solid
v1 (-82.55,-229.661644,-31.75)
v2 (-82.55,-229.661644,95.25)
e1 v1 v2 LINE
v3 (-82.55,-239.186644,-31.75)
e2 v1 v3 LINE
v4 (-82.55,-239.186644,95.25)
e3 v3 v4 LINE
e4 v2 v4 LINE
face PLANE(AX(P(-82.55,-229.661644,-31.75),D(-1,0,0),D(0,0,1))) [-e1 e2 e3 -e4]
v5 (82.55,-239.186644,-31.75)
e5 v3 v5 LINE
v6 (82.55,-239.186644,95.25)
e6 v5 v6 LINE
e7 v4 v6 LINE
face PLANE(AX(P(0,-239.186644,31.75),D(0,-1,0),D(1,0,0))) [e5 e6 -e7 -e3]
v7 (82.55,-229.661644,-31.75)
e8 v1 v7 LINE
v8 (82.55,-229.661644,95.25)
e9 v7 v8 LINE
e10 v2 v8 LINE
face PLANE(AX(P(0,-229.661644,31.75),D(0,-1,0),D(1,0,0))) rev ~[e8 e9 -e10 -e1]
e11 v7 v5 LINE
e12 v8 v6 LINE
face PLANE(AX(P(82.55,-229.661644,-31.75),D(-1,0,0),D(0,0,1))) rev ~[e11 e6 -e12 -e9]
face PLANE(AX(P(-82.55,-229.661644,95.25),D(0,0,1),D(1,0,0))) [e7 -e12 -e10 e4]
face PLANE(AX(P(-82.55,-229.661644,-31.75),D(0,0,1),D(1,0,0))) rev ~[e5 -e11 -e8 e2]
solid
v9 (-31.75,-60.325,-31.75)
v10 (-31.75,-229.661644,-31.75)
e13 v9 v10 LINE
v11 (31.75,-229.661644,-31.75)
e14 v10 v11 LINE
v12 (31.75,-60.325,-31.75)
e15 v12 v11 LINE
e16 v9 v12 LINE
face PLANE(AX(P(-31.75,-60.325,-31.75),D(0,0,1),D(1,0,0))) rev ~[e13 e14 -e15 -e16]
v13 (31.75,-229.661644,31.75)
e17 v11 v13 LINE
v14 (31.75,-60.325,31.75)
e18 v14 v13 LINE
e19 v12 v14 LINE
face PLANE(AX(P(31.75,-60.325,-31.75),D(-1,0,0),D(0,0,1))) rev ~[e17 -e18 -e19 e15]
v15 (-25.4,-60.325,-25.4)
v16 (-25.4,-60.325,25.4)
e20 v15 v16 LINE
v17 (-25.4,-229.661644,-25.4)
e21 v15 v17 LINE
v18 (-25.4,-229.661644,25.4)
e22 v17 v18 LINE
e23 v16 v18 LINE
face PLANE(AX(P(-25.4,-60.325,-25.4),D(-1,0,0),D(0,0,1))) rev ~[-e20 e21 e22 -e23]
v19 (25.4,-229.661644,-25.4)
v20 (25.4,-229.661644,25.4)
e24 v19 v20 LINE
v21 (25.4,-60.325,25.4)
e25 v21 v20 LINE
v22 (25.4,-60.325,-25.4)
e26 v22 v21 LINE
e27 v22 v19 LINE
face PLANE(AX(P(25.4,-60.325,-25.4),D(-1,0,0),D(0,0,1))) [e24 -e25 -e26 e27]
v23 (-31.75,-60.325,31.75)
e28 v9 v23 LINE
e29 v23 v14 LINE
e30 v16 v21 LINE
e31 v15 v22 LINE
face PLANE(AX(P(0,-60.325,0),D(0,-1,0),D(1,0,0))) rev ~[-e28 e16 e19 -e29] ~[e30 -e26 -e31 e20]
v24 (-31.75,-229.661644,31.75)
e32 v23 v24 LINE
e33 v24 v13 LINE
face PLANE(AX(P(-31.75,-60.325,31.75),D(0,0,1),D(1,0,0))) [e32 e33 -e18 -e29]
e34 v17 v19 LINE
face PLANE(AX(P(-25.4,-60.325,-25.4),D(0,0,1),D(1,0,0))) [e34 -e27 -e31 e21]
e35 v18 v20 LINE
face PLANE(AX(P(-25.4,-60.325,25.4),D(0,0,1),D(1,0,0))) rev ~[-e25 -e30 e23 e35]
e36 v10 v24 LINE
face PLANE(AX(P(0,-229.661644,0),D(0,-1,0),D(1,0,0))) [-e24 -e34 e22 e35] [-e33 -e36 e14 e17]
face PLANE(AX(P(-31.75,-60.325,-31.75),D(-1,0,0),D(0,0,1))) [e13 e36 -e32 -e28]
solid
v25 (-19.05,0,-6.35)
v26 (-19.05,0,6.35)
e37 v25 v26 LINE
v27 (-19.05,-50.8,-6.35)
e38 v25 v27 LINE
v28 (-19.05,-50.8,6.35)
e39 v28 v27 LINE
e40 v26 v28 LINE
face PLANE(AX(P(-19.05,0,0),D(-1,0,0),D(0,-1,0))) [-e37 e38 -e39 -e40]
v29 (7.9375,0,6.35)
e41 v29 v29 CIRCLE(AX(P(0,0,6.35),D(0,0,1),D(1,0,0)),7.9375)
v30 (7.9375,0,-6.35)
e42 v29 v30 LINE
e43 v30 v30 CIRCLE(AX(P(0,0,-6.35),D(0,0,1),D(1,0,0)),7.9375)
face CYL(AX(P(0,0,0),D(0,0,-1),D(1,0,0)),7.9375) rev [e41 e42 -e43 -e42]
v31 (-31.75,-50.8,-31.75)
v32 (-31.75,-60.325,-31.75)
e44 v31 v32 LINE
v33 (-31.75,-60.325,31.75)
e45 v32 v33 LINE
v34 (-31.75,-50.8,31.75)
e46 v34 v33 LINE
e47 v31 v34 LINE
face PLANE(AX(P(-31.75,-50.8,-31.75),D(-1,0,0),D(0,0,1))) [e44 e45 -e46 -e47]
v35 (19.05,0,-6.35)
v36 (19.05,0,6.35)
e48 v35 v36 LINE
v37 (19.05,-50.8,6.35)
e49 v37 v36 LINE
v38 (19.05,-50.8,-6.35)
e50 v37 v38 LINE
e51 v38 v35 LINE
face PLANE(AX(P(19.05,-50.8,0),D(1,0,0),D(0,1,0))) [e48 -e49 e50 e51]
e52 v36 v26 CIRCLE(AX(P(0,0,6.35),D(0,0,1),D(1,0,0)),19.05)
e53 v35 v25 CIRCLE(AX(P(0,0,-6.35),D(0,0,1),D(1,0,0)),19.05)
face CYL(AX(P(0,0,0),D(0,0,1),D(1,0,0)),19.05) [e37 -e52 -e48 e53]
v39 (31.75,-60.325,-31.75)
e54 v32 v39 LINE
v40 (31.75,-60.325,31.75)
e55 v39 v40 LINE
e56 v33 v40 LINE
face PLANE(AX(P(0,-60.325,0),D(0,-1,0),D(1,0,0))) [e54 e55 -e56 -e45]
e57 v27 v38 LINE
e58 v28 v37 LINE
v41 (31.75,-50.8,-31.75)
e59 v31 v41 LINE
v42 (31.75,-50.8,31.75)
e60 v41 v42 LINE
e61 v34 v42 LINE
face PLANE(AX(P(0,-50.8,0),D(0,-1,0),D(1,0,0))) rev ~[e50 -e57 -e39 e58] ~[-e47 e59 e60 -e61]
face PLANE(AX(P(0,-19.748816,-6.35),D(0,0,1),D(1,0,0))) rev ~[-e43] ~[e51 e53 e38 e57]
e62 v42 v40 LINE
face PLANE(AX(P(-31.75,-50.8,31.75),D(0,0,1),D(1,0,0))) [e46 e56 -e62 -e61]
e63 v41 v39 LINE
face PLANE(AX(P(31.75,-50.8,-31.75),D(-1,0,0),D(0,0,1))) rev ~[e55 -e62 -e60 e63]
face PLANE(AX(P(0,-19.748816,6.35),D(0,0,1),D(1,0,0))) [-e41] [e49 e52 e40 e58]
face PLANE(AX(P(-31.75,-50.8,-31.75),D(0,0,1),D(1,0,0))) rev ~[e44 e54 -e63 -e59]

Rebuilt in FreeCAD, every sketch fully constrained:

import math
import FreeCAD as App
import Part
import Sketcher

V = App.Vector
Q = App.Units.Quantity

doc = App.newDocument("Part")
params = doc.addObject("Spreadsheet::Sheet", "Params")
for row, (alias, value) in enumerate([
    ("sketch1_height", "2 in"),
    ("sketch1_radius", "0.75 in"),
    ("sketch1_diameter", "0.625 in"),
    ("pad1_length", "0.25 in"),
    ("pad1_length2", "0.25 in"),
    ("sketch2_width", "2.5 in"),
    ("pad2_length", "0.375 in"),
    ("sketch3_width", "2 in"),
    ("sketch3_width2", "2.5 in"),
    ("pad3_length", "169.336644 mm"),
    ("sketch4_height", "5 in"),
    ("sketch4_width", "6.5 in"),
    ("pad4_length", "0.375 in"),
], start=1):
    params.set(f"A{row}", alias)
    params.set(f"B{row}", "=" + value)
    params.setAlias(f"B{row}", alias)

body = doc.addObject("PartDesign::Body", "Body")

# Sketch on XY plane
sketch1 = doc.addObject("Sketcher::SketchObject", "Sketch")
body.addObject(sketch1)
sketch1.AttachmentSupport = (doc.XY_Plane, [""])
sketch1.MapMode = "FlatFace"
sketch1.addGeometry([
    Part.LineSegment(V(19, -51, 0), V(19, 0, 0)),  # 0
    Part.ArcOfCircle(Part.Circle(V(0, 0, 0), V(0, 0, 1), 19), math.radians(0), math.radians(180)),  # 1
    Part.LineSegment(V(-19, 0, 0), V(-19, -51, 0)),  # 2
    Part.LineSegment(V(-19, -51, 0), V(19, -51, 0)),  # 3
    Part.Circle(V(0, 0, 0), V(0, 0, 1), 8),  # 4
], False)
sketch1.addConstraint([
    Sketcher.Constraint("Tangent", 0, 2, 1, 1),
    Sketcher.Constraint("Tangent", 1, 2, 2, 1),
    Sketcher.Constraint("Coincident", 2, 2, 3, 1),
    Sketcher.Constraint("Coincident", 3, 2, 0, 1),
    Sketcher.Constraint("Vertical", 0),
    Sketcher.Constraint("Vertical", 2),
    Sketcher.Constraint("Horizontal", 3),
    Sketcher.Constraint("Coincident", 1, 3, -1, 1),
    Sketcher.Constraint("Coincident", 4, 3, -1, 1),
    Sketcher.Constraint("DistanceY", 0, 1, 0, 2, Q("2 in")),
    Sketcher.Constraint("Radius", 1, Q("0.75 in")),
    Sketcher.Constraint("Diameter", 4, Q("0.625 in")),
])
sketch1.setExpression("Constraints[9]", "Params.sketch1_height")
sketch1.setExpression("Constraints[10]", "Params.sketch1_radius")
sketch1.setExpression("Constraints[11]", "Params.sketch1_diameter")
pad1 = doc.addObject("PartDesign::Pad", "Pad")
body.addObject(pad1)
pad1.Profile = sketch1
pad1.Type = "TwoLengths"
pad1.setExpression("Length", "Params.pad1_length")
pad1.setExpression("Length2", "Params.pad1_length2")

# Sketch on XZ plane
sketch2 = doc.addObject("Sketcher::SketchObject", "Sketch001")
body.addObject(sketch2)
sketch2.AttachmentSupport = (doc.XZ_Plane, [""])
sketch2.MapMode = "FlatFace"
sketch2.AttachmentOffset = App.Placement(V(0, 0, 2 * 25.4), App.Rotation())
sketch2.addGeometry([
    Part.LineSegment(V(-32, 32, 0), V(-32, -32, 0)),
    Part.LineSegment(V(-32, -32, 0), V(32, -32, 0)),
    Part.LineSegment(V(32, -32, 0), V(32, 32, 0)),
    Part.LineSegment(V(32, 32, 0), V(-32, 32, 0)),
], False)
sketch2.addConstraint([
    Sketcher.Constraint("Coincident", 0, 2, 1, 1),
    Sketcher.Constraint("Coincident", 1, 2, 2, 1),
    Sketcher.Constraint("Coincident", 2, 2, 3, 1),
    Sketcher.Constraint("Coincident", 3, 2, 0, 1),
    Sketcher.Constraint("Vertical", 0),
    Sketcher.Constraint("Horizontal", 1),
    Sketcher.Constraint("Vertical", 2),
    Sketcher.Constraint("Horizontal", 3),
    Sketcher.Constraint("Symmetric", 0, 2, 2, 2, -1, 1),
    Sketcher.Constraint("Equal", 3, 0),
    Sketcher.Constraint("DistanceX", 1, 1, 1, 2, Q("2.5 in")),
])
sketch2.setExpression("Constraints[10]", "Params.sketch2_width")
pad2 = doc.addObject("PartDesign::Pad", "Pad001")
body.addObject(pad2)
pad2.Profile = sketch2
pad2.setExpression("Length", "Params.pad2_length")
body2 = doc.addObject("PartDesign::Body", "Body001")

# Sketch on XZ plane
sketch3 = doc.addObject("Sketcher::SketchObject", "Sketch002")
body2.addObject(sketch3)
sketch3.AttachmentSupport = (doc.getObject("XZ_Plane001"), [""])
sketch3.MapMode = "FlatFace"
sketch3.AttachmentOffset = App.Placement(V(0, 0, 2.375 * 25.4), App.Rotation())
sketch3.addGeometry([
    Part.LineSegment(V(-32, 32, 0), V(-32, -32, 0)),  # 0
    Part.LineSegment(V(-32, -32, 0), V(32, -32, 0)),  # 1
    Part.LineSegment(V(32, -32, 0), V(32, 32, 0)),  # 2
    Part.LineSegment(V(32, 32, 0), V(-32, 32, 0)),  # 3
    Part.LineSegment(V(25, -25, 0), V(-25, -25, 0)),  # 4
    Part.LineSegment(V(-25, -25, 0), V(-25, 25, 0)),  # 5
    Part.LineSegment(V(-25, 25, 0), V(25, 25, 0)),  # 6
    Part.LineSegment(V(25, 25, 0), V(25, -25, 0)),  # 7
], False)
sketch3.addConstraint([
    Sketcher.Constraint("Coincident", 0, 2, 1, 1),
    Sketcher.Constraint("Coincident", 1, 2, 2, 1),
    Sketcher.Constraint("Coincident", 2, 2, 3, 1),
    Sketcher.Constraint("Coincident", 3, 2, 0, 1),
    Sketcher.Constraint("Coincident", 4, 2, 5, 1),
    Sketcher.Constraint("Coincident", 5, 2, 6, 1),
    Sketcher.Constraint("Coincident", 6, 2, 7, 1),
    Sketcher.Constraint("Coincident", 7, 2, 4, 1),
    Sketcher.Constraint("Vertical", 0),
    Sketcher.Constraint("Horizontal", 1),
    Sketcher.Constraint("Vertical", 2),
    Sketcher.Constraint("Horizontal", 3),
    Sketcher.Constraint("Horizontal", 4),
    Sketcher.Constraint("Vertical", 5),
    Sketcher.Constraint("Horizontal", 6),
    Sketcher.Constraint("Vertical", 7),
    Sketcher.Constraint("Symmetric", 0, 2, 2, 2, -1, 1),
    Sketcher.Constraint("Symmetric", 4, 2, 6, 2, -1, 1),
    Sketcher.Constraint("Equal", 3, 0),
    Sketcher.Constraint("Equal", 6, 5),
    Sketcher.Constraint("DistanceX", 4, 2, 4, 1, Q("2 in")),
    Sketcher.Constraint("DistanceX", 1, 1, 1, 2, Q("2.5 in")),
])
sketch3.setExpression("Constraints[20]", "Params.sketch3_width")
sketch3.setExpression("Constraints[21]", "Params.sketch3_width2")
pad3 = doc.addObject("PartDesign::Pad", "Pad002")
body2.addObject(pad3)
pad3.Profile = sketch3
pad3.setExpression("Length", "Params.pad3_length")
body3 = doc.addObject("PartDesign::Body", "Body002")

# Sketch on XZ plane
sketch4 = doc.addObject("Sketcher::SketchObject", "Sketch003")
body3.addObject(sketch4)
sketch4.AttachmentSupport = (doc.getObject("XZ_Plane002"), [""])
sketch4.MapMode = "FlatFace"
sketch4.AttachmentOffset = App.Placement(V(0, 0, 229.661644), App.Rotation())
sketch4.addGeometry([
    Part.LineSegment(V(-83, 95, 0), V(-83, -32, 0)),
    Part.LineSegment(V(-83, -32, 0), V(83, -32, 0)),
    Part.LineSegment(V(83, -32, 0), V(83, 95, 0)),
    Part.LineSegment(V(83, 95, 0), V(-83, 95, 0)),
], False)
sketch4.addConstraint([
    Sketcher.Constraint("Coincident", 0, 2, 1, 1),
    Sketcher.Constraint("Coincident", 1, 2, 2, 1),
    Sketcher.Constraint("Coincident", 2, 2, 3, 1),
    Sketcher.Constraint("Coincident", 3, 2, 0, 1),
    Sketcher.Constraint("Vertical", 0),
    Sketcher.Constraint("Horizontal", 1),
    Sketcher.Constraint("Vertical", 2),
    Sketcher.Constraint("Horizontal", 3),
    Sketcher.Constraint("DistanceY", 0, 2, 0, 1, Q("5 in")),
    Sketcher.Constraint("DistanceX", 1, 1, 1, 2, Q("6.5 in")),
    Sketcher.Constraint("DistanceX", 0, 2, -1, 1, Q("3.25 in")),
    Sketcher.Constraint("DistanceY", 0, 2, -1, 1, Q("1.25 in")),
])
sketch4.setExpression("Constraints[8]", "Params.sketch4_height")
sketch4.setExpression("Constraints[9]", "Params.sketch4_width")
pad4 = doc.addObject("PartDesign::Pad", "Pad003")
body3.addObject(pad4)
pad4.Profile = sketch4
pad4.setExpression("Length", "Params.pad4_length")

doc.recompute()
